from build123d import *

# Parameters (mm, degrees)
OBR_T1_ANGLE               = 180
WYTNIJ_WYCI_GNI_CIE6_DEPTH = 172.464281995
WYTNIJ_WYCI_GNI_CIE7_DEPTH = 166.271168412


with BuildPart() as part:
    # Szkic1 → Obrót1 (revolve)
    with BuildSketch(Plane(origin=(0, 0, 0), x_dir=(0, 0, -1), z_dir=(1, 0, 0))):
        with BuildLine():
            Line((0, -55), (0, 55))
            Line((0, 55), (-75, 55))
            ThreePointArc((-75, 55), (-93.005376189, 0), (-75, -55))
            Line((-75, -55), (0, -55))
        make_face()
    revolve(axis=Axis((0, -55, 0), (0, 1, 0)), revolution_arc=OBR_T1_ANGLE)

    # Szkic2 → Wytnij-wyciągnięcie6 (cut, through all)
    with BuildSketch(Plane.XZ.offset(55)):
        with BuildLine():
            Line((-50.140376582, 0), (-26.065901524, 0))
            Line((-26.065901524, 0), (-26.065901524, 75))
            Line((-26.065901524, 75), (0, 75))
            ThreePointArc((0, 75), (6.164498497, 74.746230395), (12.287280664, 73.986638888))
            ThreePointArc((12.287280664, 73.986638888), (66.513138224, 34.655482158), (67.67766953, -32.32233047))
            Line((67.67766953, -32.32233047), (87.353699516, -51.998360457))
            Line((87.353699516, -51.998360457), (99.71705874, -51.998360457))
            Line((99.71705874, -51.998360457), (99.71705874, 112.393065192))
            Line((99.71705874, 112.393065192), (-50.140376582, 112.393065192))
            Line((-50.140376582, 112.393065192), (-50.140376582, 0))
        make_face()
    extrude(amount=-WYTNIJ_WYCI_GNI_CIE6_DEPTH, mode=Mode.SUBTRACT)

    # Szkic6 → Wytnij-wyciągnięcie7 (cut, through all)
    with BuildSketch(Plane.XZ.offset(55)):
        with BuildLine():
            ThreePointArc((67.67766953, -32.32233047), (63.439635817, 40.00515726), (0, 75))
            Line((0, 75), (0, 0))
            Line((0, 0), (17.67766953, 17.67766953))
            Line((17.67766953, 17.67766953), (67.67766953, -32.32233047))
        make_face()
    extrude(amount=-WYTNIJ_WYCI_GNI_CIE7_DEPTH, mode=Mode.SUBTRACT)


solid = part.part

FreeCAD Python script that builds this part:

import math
import FreeCAD as App
import Part
import Sketcher
from FreeCAD import Vector
Q = App.Units.Quantity

doc = App.newDocument("Part")
body = doc.addObject("PartDesign::Body", "Body")

sketch1 = body.newObject("Sketcher::SketchObject", "Sketch")
sketch1.AttachmentSupport = (doc.getObject("YZ_Plane"), [""])
sketch1.MapMode = "FlatFace"
sketch1.addGeometry(Part.LineSegment(Vector(-55, 0, 0), Vector(55, 0, 0)), False)
sketch1.addGeometry(Part.LineSegment(Vector(55, 0, 0), Vector(55, 75, 0)), False)
sketch1.addGeometry(Part.ArcOfCircle(Part.Circle(Vector(0, 0, 0), Vector(0, 0, 1), 93), math.radians(54), math.radians(126)), False)
sketch1.addGeometry(Part.LineSegment(Vector(-55, 75, 0), Vector(-55, 0, 0)), False)
sketch1.addConstraint(Sketcher.Constraint("Coincident", 0, 2, 1, 1))
sketch1.addConstraint(Sketcher.Constraint("Coincident", 1, 2, 2, 1))
sketch1.addConstraint(Sketcher.Constraint("Coincident", 2, 2, 3, 1))
sketch1.addConstraint(Sketcher.Constraint("Coincident", 3, 2, 0, 1))
sketch1.addConstraint(Sketcher.Constraint("Horizontal", 0))
sketch1.addConstraint(Sketcher.Constraint("Vertical", 1))
sketch1.addConstraint(Sketcher.Constraint("Vertical", 3))
sketch1.addConstraint(Sketcher.Constraint("Coincident", 2, 3, -1, 1))
sketch1.addConstraint(Sketcher.Constraint("Symmetric", 0, 2, 3, 2, -1, 1))
sketch1.addConstraint(Sketcher.Constraint("DistanceX", 0, 1, 0, 2, 110.0))
sketch1.addConstraint(Sketcher.Constraint("DistanceY", 1, 1, 1, 2, 75.0))
revolution = body.newObject("PartDesign::Revolution", "Revolution")
revolution.Profile = sketch1
revolution.ReferenceAxis = (sketch1, ["H_Axis"])
revolution.Angle = 180

sketch2 = body.newObject("Sketcher::SketchObject", "Sketch001")
sketch2.AttachmentSupport = (doc.getObject("XZ_Plane"), [""])
sketch2.MapMode = "FlatFace"
sketch2.AttachmentOffset = App.Placement(Vector(0, 0, 55), App.Rotation())
sketch2.addGeometry(Part.LineSegment(Vector(-50, 0, 0), Vector(-26, 0, 0)), False)
sketch2.addGeometry(Part.LineSegment(Vector(-26, 0, 0), Vector(-26, 75, 0)), False)
sketch2.addGeometry(Part.LineSegment(Vector(-26, 75, 0), Vector(0, 75, 0)), False)
sketch2.addGeometry(Part.ArcOfCircle(Part.Circle(Vector(0, 0, 0), Vector(0, 0, 1), 75), math.radians(80.57), math.radians(90)), False)
sketch2.addGeometry(Part.ArcOfCircle(Part.Circle(Vector(0, 0, 0), Vector(0, 0, 1), 75), math.radians(-26), math.radians(81)), False)
sketch2.addGeometry(Part.LineSegment(Vector(68, -32, 0), Vector(87, -52, 0)), False)
sketch2.addGeometry(Part.LineSegment(Vector(87, -52, 0), Vector(100, -52, 0)), False)
sketch2.addGeometry(Part.LineSegment(Vector(100, -52, 0), Vector(100, 112, 0)), False)
sketch2.addGeometry(Part.LineSegment(Vector(100, 112, 0), Vector(-50, 112, 0)), False)
sketch2.addGeometry(Part.LineSegment(Vector(-50, 112, 0), Vector(-50, 0, 0)), False)
sketch2.addConstraint(Sketcher.Constraint("Coincident", 0, 2, 1, 1))
sketch2.addConstraint(Sketcher.Constraint("Coincident", 1, 2, 2, 1))
sketch2.addConstraint(Sketcher.Constraint("Tangent", 2, 2, 3, 2))
sketch2.addConstraint(Sketcher.Constraint("Tangent", 3, 1, 4, 2))
sketch2.addConstraint(Sketcher.Constraint("Coincident", 4, 1, 5, 1))
sketch2.addConstraint(Sketcher.Constraint("Coincident", 5, 2, 6, 1))
sketch2.addConstraint(Sketcher.Constraint("Coincident", 6, 2, 7, 1))
sketch2.addConstraint(Sketcher.Constraint("Coincident", 7, 2, 8, 1))
sketch2.addConstraint(Sketcher.Constraint("Coincident", 8, 2, 9, 1))
sketch2.addConstraint(Sketcher.Constraint("Coincident", 9, 2, 0, 1))
sketch2.addConstraint(Sketcher.Constraint("Horizontal", 0))
sketch2.addConstraint(Sketcher.Constraint("Vertical", 1))
sketch2.addConstraint(Sketcher.Constraint("Horizontal", 2))
sketch2.addConstraint(Sketcher.Constraint("Horizontal", 6))
sketch2.addConstraint(Sketcher.Constraint("Vertical", 7))
sketch2.addConstraint(Sketcher.Constraint("Horizontal", 8))
sketch2.addConstraint(Sketcher.Constraint("Vertical", 9))
sketch2.addConstraint(Sketcher.Constraint("Coincident", 3, 3, -1, 1))
sketch2.addConstraint(Sketcher.Constraint("Equal", 3, 4))
sketch2.addConstraint(Sketcher.Constraint("PointOnObject", 0, 2, -1))
sketch2.addConstraint(Sketcher.Constraint("Radius", 3, 75.0))
sketch2.addConstraint(Sketcher.Constraint("Angle", 5, Q("-45 deg")))
sketch2.addConstraint(Sketcher.Constraint("DistanceX", 2, 1, 2, 2, 26.065902))
sketch2.addConstraint(Sketcher.Constraint("DistanceY", 5, 2, 3, 1, 125.984999))
sketch2.addConstraint(Sketcher.Constraint("DistanceX", 6, 1, 6, 2, 12.363359))
sketch2.addConstraint(Sketcher.Constraint("DistanceX", -1, 1, 5, 2, 87.3537))
sketch2.addConstraint(Sketcher.Constraint("Distance", 5, 27.826108))
sketch2.addConstraint(Sketcher.Constraint("DistanceX", 0, 1, 0, 2, 24.074475))
sketch2.addConstraint(Sketcher.Constraint("DistanceY", 7, 1, 7, 2, 164.391426))
pocket1 = body.newObject("PartDesign::Pocket", "Pocket")
pocket1.Profile = sketch2
pocket1.Type = "ThroughAll"

sketch3 = body.newObject("Sketcher::SketchObject", "Sketch002")
sketch3.AttachmentSupport = (doc.getObject("XZ_Plane"), [""])
sketch3.MapMode = "FlatFace"
sketch3.AttachmentOffset = App.Placement(Vector(0, 0, 55), App.Rotation())
sketch3.addGeometry(Part.ArcOfCircle(Part.Circle(Vector(0, 0, 0), Vector(0, 0, 1), 75), math.radians(-26), math.radians(90)), False)
sketch3.addGeometry(Part.LineSegment(Vector(0, 75, 0), Vector(0, 0, 0)), False)
sketch3.addGeometry(Part.LineSegment(Vector(0, 0, 0), Vector(18, 18, 0)), False)
sketch3.addGeometry(Part.LineSegment(Vector(18, 18, 0), Vector(68, -32, 0)), False)
sketch3.addConstraint(Sketcher.Constraint("Coincident", 0, 2, 1, 1))
sketch3.addConstraint(Sketcher.Constraint("Coincident", 1, 2, 2, 1))
sketch3.addConstraint(Sketcher.Constraint("Coincident", 2, 2, 3, 1))
sketch3.addConstraint(Sketcher.Constraint("Coincident", 3, 2, 0, 1))
sketch3.addConstraint(Sketcher.Constraint("Vertical", 1))
sketch3.addConstraint(Sketcher.Constraint("Coincident", 0, 3, -1, 1))
sketch3.addConstraint(Sketcher.Constraint("Coincident", 1, 2, -1, 1))
sketch3.addConstraint(Sketcher.Constraint("Perpendicular", 2, 3))
sketch3.addConstraint(Sketcher.Constraint("Radius", 0, 75.0))
sketch3.addConstraint(Sketcher.Constraint("Angle", 2, Q("45 deg")))
sketch3.addConstraint(Sketcher.Constraint("Distance", 2, 25.0))
pocket2 = body.newObject("PartDesign::Pocket", "Pocket001")
pocket2.Profile = sketch3
pocket2.Type = "ThroughAll"

doc.recompute()
